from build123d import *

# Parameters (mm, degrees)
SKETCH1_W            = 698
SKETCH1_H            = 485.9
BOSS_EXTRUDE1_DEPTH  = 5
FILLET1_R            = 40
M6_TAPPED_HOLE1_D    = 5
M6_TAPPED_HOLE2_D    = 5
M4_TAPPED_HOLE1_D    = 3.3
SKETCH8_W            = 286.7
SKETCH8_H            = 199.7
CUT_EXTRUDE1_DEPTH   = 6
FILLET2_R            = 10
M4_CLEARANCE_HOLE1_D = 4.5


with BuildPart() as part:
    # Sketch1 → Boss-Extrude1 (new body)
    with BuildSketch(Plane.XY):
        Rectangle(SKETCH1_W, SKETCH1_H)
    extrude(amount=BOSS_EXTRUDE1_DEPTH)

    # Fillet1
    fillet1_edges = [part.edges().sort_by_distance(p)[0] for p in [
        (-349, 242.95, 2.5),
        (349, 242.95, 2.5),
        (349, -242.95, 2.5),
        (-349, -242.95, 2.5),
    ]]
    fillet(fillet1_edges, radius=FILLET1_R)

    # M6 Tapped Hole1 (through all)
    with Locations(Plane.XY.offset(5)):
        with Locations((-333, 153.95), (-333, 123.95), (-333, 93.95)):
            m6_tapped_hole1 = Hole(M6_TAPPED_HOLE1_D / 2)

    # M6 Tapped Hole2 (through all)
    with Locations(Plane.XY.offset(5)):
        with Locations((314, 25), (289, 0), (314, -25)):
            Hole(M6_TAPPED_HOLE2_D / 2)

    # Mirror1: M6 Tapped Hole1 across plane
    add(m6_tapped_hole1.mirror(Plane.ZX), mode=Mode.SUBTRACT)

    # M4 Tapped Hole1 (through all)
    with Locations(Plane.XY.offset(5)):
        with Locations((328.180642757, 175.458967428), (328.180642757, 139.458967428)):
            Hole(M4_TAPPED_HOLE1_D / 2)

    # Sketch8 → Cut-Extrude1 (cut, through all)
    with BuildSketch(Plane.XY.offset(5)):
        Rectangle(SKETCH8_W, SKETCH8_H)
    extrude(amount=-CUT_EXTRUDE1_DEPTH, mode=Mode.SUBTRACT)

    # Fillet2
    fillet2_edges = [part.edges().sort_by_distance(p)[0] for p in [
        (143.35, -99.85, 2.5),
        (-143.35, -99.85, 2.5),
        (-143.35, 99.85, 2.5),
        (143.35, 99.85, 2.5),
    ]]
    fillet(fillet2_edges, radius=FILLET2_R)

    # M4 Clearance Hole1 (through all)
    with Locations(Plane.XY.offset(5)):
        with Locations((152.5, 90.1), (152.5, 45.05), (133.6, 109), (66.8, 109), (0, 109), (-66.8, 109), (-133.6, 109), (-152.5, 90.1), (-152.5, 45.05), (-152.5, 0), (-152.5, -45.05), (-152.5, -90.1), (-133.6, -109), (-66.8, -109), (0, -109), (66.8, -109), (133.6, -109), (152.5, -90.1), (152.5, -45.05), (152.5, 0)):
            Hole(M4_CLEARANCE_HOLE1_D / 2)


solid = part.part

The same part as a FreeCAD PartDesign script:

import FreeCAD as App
import Part
import Sketcher
Q = App.Units.Quantity


def edges_at(feature, points):
    """Names of the edges that pass closest to the given points."""
    edges = feature.Shape.Edges
    near = lambda p: min(range(len(edges)), key=lambda i: edges[i].distToShape(Part.Vertex(*p))[0])
    return sorted({f"Edge{near(p) + 1}" for p in points})


def add_polygon(sketch, points):
    """Adds a closed chain of lines whose ends are joined by coincident constraints."""
    first, n = sketch.GeometryCount, len(points)
    for a, b in zip(points, points[1:] + points[:1]):
        sketch.addGeometry(Part.LineSegment(App.Vector(*a, 0), App.Vector(*b, 0)), False)
    for i in range(n):
        sketch.addConstraint(Sketcher.Constraint("Coincident", first + i, 2, first + (i + 1) % n, 1))

doc = App.newDocument("Part")
params = doc.addObject("Spreadsheet::Sheet", "Params")
for row, (alias, value) in enumerate([
    ("sketch1_width", "698 mm"),
    ("sketch1_height", "485.9 mm"),
    ("pad1_length", "5 mm"),
    ("fillet_radius", "40 mm"),
    ("sketch2_diameter", "5 mm"),
    ("hole_diameter", "5 mm"),
    ("sketch3_diameter", "5 mm"),
    ("hole2_diameter", "5 mm"),
    ("sketch4_diameter", "3.3 mm"),
    ("hole3_diameter", "3.3 mm"),
    ("sketch5_width", "286.7 mm"),
    ("sketch5_height", "199.7 mm"),
    ("fillet2_radius", "10 mm"),
    ("sketch6_diameter", "4.5 mm"),
    ("hole4_diameter", "4.5 mm"),
], start=1):
    params.set(f"A{row}", alias)
    params.set(f"B{row}", "=" + value)
    params.setAlias(f"B{row}", alias)

body = doc.addObject("PartDesign::Body", "Body")

sketch1 = body.newObject("Sketcher::SketchObject", "Sketch")
sketch1.AttachmentSupport = (doc.getObject("XY_Plane"), [""])
sketch1.MapMode = "FlatFace"
add_polygon(sketch1, [(-349, 243), (-349, -243), (349, -243), (349, 243)])
sketch1.addConstraint(Sketcher.Constraint("Vertical", 0))
sketch1.addConstraint(Sketcher.Constraint("Horizontal", 1))
sketch1.addConstraint(Sketcher.Constraint("Vertical", 2))
sketch1.addConstraint(Sketcher.Constraint("Horizontal", 3))
sketch1.addConstraint(Sketcher.Constraint("Symmetric", 0, 2, 2, 2, -1, 1))
sketch1.addConstraint(Sketcher.Constraint("DistanceX", 1, 1, 1, 2, Q("698 mm")))
sketch1.addConstraint(Sketcher.Constraint("DistanceY", 0, 2, 0, 1, Q("485.9 mm")))
sketch1.setExpression("Constraints[9]", "Params.sketch1_width")
sketch1.setExpression("Constraints[10]", "Params.sketch1_height")
pad1 = body.newObject("PartDesign::Pad", "Pad")
pad1.Profile = sketch1
pad1.setExpression("Length", "Params.pad1_length")
doc.recompute()

fillet = body.newObject("PartDesign::Fillet", "Fillet")
fillet.Base = (pad1, edges_at(pad1, [
    (-349, 242.95, 2.5),
    (349, 242.95, 2.5),
    (349, -242.95, 2.5),
    (-349, -242.95, 2.5),
]))
fillet.setExpression("Radius", "Params.fillet_radius")

sketch2 = body.newObject("Sketcher::SketchObject", "Sketch001")
sketch2.AttachmentSupport = (doc.getObject("XY_Plane"), [""])
sketch2.MapMode = "FlatFace"
sketch2.AttachmentOffset = App.Placement(App.Vector(0, 0, 5), App.Rotation())
sketch2.addGeometry(Part.Circle(App.Vector(-333, 153.9, 0), App.Vector(0, 0, 1), 2.5), False)
sketch2.addGeometry(Part.Circle(App.Vector(-333, 124, 0), App.Vector(0, 0, 1), 2.5), False)
sketch2.addGeometry(Part.Circle(App.Vector(-333, 94, 0), App.Vector(0, 0, 1), 2.5), False)
sketch2.addConstraint(Sketcher.Constraint("Equal", 0, 1))
sketch2.addConstraint(Sketcher.Constraint("Equal", 1, 2))
sketch2.addConstraint(Sketcher.Constraint("Vertical", 0, 3, 1, 3))
sketch2.addConstraint(Sketcher.Constraint("Vertical", 1, 3, 2, 3))
sketch2.addConstraint(Sketcher.Constraint("Diameter", 0, Q("5 mm")))
sketch2.addConstraint(Sketcher.Constraint("DistanceX", 0, 3, -1, 1, Q("333 mm")))
sketch2.addConstraint(Sketcher.Constraint("DistanceY", 1, 3, 0, 3, Q("30 mm")))
sketch2.addConstraint(Sketcher.Constraint("DistanceY", 2, 3, 1, 3, Q("30 mm")))
sketch2.addConstraint(Sketcher.Constraint("DistanceY", -1, 1, 0, 3, Q("153.95 mm")))
sketch2.setExpression("Constraints[4]", "Params.sketch2_diameter")
doc.recompute()
hole = body.newObject("PartDesign::Hole", "Hole")
hole.Profile = sketch2
hole.ThreadType = "None"
hole.setExpression("Diameter", "Params.hole_diameter")
hole.DepthType = "ThroughAll"

sketch3 = body.newObject("Sketcher::SketchObject", "Sketch002")
sketch3.AttachmentSupport = (doc.getObject("XY_Plane"), [""])
sketch3.MapMode = "FlatFace"
sketch3.AttachmentOffset = App.Placement(App.Vector(0, 0, 5), App.Rotation())
sketch3.addGeometry(Part.Circle(App.Vector(314, 25, 0), App.Vector(0, 0, 1), 2.5), False)
sketch3.addGeometry(Part.Circle(App.Vector(289, 0, 0), App.Vector(0, 0, 1), 2.5), False)
sketch3.addGeometry(Part.Circle(App.Vector(314, -25, 0), App.Vector(0, 0, 1), 2.5), False)
sketch3.addConstraint(Sketcher.Constraint("Equal", 0, 1))
sketch3.addConstraint(Sketcher.Constraint("Equal", 1, 2))
sketch3.addConstraint(Sketcher.Constraint("Symmetric", 0, 3, 2, 3, -1))
sketch3.addConstraint(Sketcher.Constraint("PointOnObject", 1, 3, -1))
sketch3.addConstraint(Sketcher.Constraint("Diameter", 0, Q("5 mm")))
sketch3.addConstraint(Sketcher.Constraint("DistanceX", -1, 1, 0, 3, Q("314 mm")))
sketch3.addConstraint(Sketcher.Constraint("DistanceY", -1, 1, 0, 3, Q("25 mm")))
sketch3.addConstraint(Sketcher.Constraint("DistanceX", -1, 1, 1, 3, Q("289 mm")))
sketch3.setExpression("Constraints[4]", "Params.sketch3_diameter")
doc.recompute()
hole2 = body.newObject("PartDesign::Hole", "Hole001")
hole2.Profile = sketch3
hole2.ThreadType = "None"
hole2.setExpression("Diameter", "Params.hole2_diameter")
hole2.DepthType = "ThroughAll"
doc.recompute()

mirrored = body.newObject("PartDesign::Mirrored", "Mirrored")
mirrored.Originals = [hole]
mirrored.MirrorPlane = (doc.getObject("XZ_Plane"), [""])
body.Tip = mirrored

sketch4 = body.newObject("Sketcher::SketchObject", "Sketch003")
sketch4.AttachmentSupport = (doc.getObject("XY_Plane"), [""])
sketch4.MapMode = "FlatFace"
sketch4.AttachmentOffset = App.Placement(App.Vector(0, 0, 5), App.Rotation())
sketch4.addGeometry(Part.Circle(App.Vector(328.2, 175.5, 0), App.Vector(0, 0, 1), 1.6), False)
sketch4.addGeometry(Part.Circle(App.Vector(328.2, 139.5, 0), App.Vector(0, 0, 1), 1.6), False)
sketch4.addConstraint(Sketcher.Constraint("Equal", 0, 1))
sketch4.addConstraint(Sketcher.Constraint("Vertical", 0, 3, 1, 3))
sketch4.addConstraint(Sketcher.Constraint("Diameter", 0, Q("3.3 mm")))
sketch4.addConstraint(Sketcher.Constraint("DistanceY", 1, 3, 0, 3, Q("36 mm")))
sketch4.addConstraint(Sketcher.Constraint("DistanceX", -1, 1, 0, 3, Q("328.180643 mm")))
sketch4.addConstraint(Sketcher.Constraint("DistanceY", -1, 1, 0, 3, Q("175.458967 mm")))
sketch4.setExpression("Constraints[2]", "Params.sketch4_diameter")
doc.recompute()
hole3 = body.newObject("PartDesign::Hole", "Hole002")
hole3.Profile = sketch4
hole3.ThreadType = "None"
hole3.setExpression("Diameter", "Params.hole3_diameter")
hole3.DepthType = "ThroughAll"

sketch5 = body.newObject("Sketcher::SketchObject", "Sketch004")
sketch5.AttachmentSupport = (doc.getObject("XY_Plane"), [""])
sketch5.MapMode = "FlatFace"
sketch5.AttachmentOffset = App.Placement(App.Vector(0, 0, 5), App.Rotation())
add_polygon(sketch5, [(-143, 100), (-143, -100), (143, -100), (143, 100)])
sketch5.addConstraint(Sketcher.Constraint("Vertical", 0))
sketch5.addConstraint(Sketcher.Constraint("Horizontal", 1))
sketch5.addConstraint(Sketcher.Constraint("Vertical", 2))
sketch5.addConstraint(Sketcher.Constraint("Horizontal", 3))
sketch5.addConstraint(Sketcher.Constraint("Symmetric", 0, 2, 2, 2, -1, 1))
sketch5.addConstraint(Sketcher.Constraint("DistanceX", 1, 1, 1, 2, Q("286.7 mm")))
sketch5.addConstraint(Sketcher.Constraint("DistanceY", 0, 2, 0, 1, Q("199.7 mm")))
sketch5.setExpression("Constraints[9]", "Params.sketch5_width")
sketch5.setExpression("Constraints[10]", "Params.sketch5_height")
pocket1 = body.newObject("PartDesign::Pocket", "Pocket")
pocket1.Profile = sketch5
pocket1.Type = "ThroughAll"
doc.recompute()

fillet2 = body.newObject("PartDesign::Fillet", "Fillet001")
fillet2.Base = (pocket1, edges_at(pocket1, [
    (143.35, -99.85, 2.5),
    (-143.35, -99.85, 2.5),
    (-143.35, 99.85, 2.5),
    (143.35, 99.85, 2.5),
]))
fillet2.setExpression("Radius", "Params.fillet2_radius")

sketch6 = body.newObject("Sketcher::SketchObject", "Sketch005")
sketch6.AttachmentSupport = (doc.getObject("XY_Plane"), [""])
sketch6.MapMode = "FlatFace"
sketch6.AttachmentOffset = App.Placement(App.Vector(0, 0, 5), App.Rotation())
sketch6.addGeometry(Part.Circle(App.Vector(152.5, 90.1, 0), App.Vector(0, 0, 1), 2.2), False)
sketch6.addGeometry(Part.Circle(App.Vector(152.5, 45, 0), App.Vector(0, 0, 1), 2.2), False)
sketch6.addGeometry(Part.Circle(App.Vector(133.6, 109, 0), App.Vector(0, 0, 1), 2.2), False)
sketch6.addGeometry(Part.Circle(App.Vector(66.8, 109, 0), App.Vector(0, 0, 1), 2.2), False)
sketch6.addGeometry(Part.Circle(App.Vector(0, 109, 0), App.Vector(0, 0, 1), 2.2), False)
sketch6.addGeometry(Part.Circle(App.Vector(-66.8, 109, 0), App.Vector(0, 0, 1), 2.2), False)
sketch6.addGeometry(Part.Circle(App.Vector(-133.6, 109, 0), App.Vector(0, 0, 1), 2.2), False)
sketch6.addGeometry(Part.Circle(App.Vector(-152.5, 90.1, 0), App.Vector(0, 0, 1), 2.2), False)
sketch6.addGeometry(Part.Circle(App.Vector(-152.5, 45, 0), App.Vector(0, 0, 1), 2.2), False)
sketch6.addGeometry(Part.Circle(App.Vector(-152.5, 0, 0), App.Vector(0, 0, 1), 2.2), False)
sketch6.addGeometry(Part.Circle(App.Vector(-152.5, -45, 0), App.Vector(0, 0, 1), 2.2), False)
sketch6.addGeometry(Part.Circle(App.Vector(-152.5, -90.1, 0), App.Vector(0, 0, 1), 2.2), False)
sketch6.addGeometry(Part.Circle(App.Vector(-133.6, -109, 0), App.Vector(0, 0, 1), 2.2), False)
sketch6.addGeometry(Part.Circle(App.Vector(-66.8, -109, 0), App.Vector(0, 0, 1), 2.2), False)
sketch6.addGeometry(Part.Circle(App.Vector(0, -109, 0), App.Vector(0, 0, 1), 2.2), False)
sketch6.addGeometry(Part.Circle(App.Vector(66.8, -109, 0), App.Vector(0, 0, 1), 2.2), False)
sketch6.addGeometry(Part.Circle(App.Vector(133.6, -109, 0), App.Vector(0, 0, 1), 2.2), False)
sketch6.addGeometry(Part.Circle(App.Vector(152.5, -90.1, 0), App.Vector(0, 0, 1), 2.2), False)
sketch6.addGeometry(Part.Circle(App.Vector(152.5, -45, 0), App.Vector(0, 0, 1), 2.2), False)
sketch6.addGeometry(Part.Circle(App.Vector(152.5, 0, 0), App.Vector(0, 0, 1), 2.2), False)
sketch6.addConstraint(Sketcher.Constraint("Equal", 0, 1))
sketch6.addConstraint(Sketcher.Constraint("Equal", 1, 2))
sketch6.addConstraint(Sketcher.Constraint("Equal", 2, 3))
sketch6.addConstraint(Sketcher.Constraint("Equal", 3, 4))
sketch6.addConstraint(Sketcher.Constraint("Equal", 4, 5))
sketch6.addConstraint(Sketcher.Constraint("Equal", 5, 6))
sketch6.addConstraint(Sketcher.Constraint("Equal", 6, 7))
sketch6.addConstraint(Sketcher.Constraint("Equal", 7, 8))
sketch6.addConstraint(Sketcher.Constraint("Equal", 8, 9))
sketch6.addConstraint(Sketcher.Constraint("Equal", 9, 10))
sketch6.addConstraint(Sketcher.Constraint("Equal", 10, 11))
sketch6.addConstraint(Sketcher.Constraint("Equal", 11, 12))
sketch6.addConstraint(Sketcher.Constraint("Equal", 12, 13))
sketch6.addConstraint(Sketcher.Constraint("Equal", 13, 14))
sketch6.addConstraint(Sketcher.Constraint("Equal", 14, 15))
sketch6.addConstraint(Sketcher.Constraint("Equal", 15, 16))
sketch6.addConstraint(Sketcher.Constraint("Equal", 16, 17))
sketch6.addConstraint(Sketcher.Constraint("Equal", 17, 18))
sketch6.addConstraint(Sketcher.Constraint("Equal", 18, 19))
sketch6.addConstraint(Sketcher.Constraint("Symmetric", 1, 3, 10, 3, -1, 1))
sketch6.addConstraint(Sketcher.Constraint("Symmetric", 0, 3, 11, 3, -1, 1))
sketch6.addConstraint(Sketcher.Constraint("Symmetric", 2, 3, 12, 3, -1, 1))
sketch6.addConstraint(Sketcher.Constraint("Symmetric", 3, 3, 13, 3, -1, 1))
sketch6.addConstraint(Sketcher.Constraint("Symmetric", 4, 3, 14, 3, -1, 1))
sketch6.addConstraint(Sketcher.Constraint("Symmetric", 5, 3, 15, 3, -1, 1))
sketch6.addConstraint(Sketcher.Constraint("Symmetric", 6, 3, 16, 3, -1, 1))
sketch6.addConstraint(Sketcher.Constraint("Symmetric", 7, 3, 17, 3, -1, 1))
sketch6.addConstraint(Sketcher.Constraint("Symmetric", 8, 3, 18, 3, -1, 1))
sketch6.addConstraint(Sketcher.Constraint("Symmetric", 9, 3, 19, 3, -1, 1))
sketch6.addConstraint(Sketcher.Constraint("Symmetric", 3, 3, 5, 3, -2))
sketch6.addConstraint(Sketcher.Constraint("Symmetric", 2, 3, 6, 3, -2))
sketch6.addConstraint(Sketcher.Constraint("Symmetric", 0, 3, 7, 3, -2))
sketch6.addConstraint(Sketcher.Constraint("Symmetric", 1, 3, 8, 3, -2))
sketch6.addConstraint(Sketcher.Constraint("PointOnObject", 4, 3, -2))
sketch6.addConstraint(Sketcher.Constraint("PointOnObject", 9, 3, -1))
sketch6.addConstraint(Sketcher.Constraint("Horizontal", 2, 3, 3, 3))
sketch6.addConstraint(Sketcher.Constraint("Horizontal", 3, 3, 4, 3))
sketch6.addConstraint(Sketcher.Constraint("Vertical", 0, 3, 1, 3))
sketch6.addConstraint(Sketcher.Constraint("Vertical", 8, 3, 9, 3))
sketch6.addConstraint(Sketcher.Constraint("Diameter", 0, Q("4.5 mm")))
sketch6.addConstraint(Sketcher.Constraint("DistanceY", -1, 1, 2, 3, Q("109 mm")))
sketch6.addConstraint(Sketcher.Constraint("DistanceX", -1, 1, 0, 3, Q("152.5 mm")))
sketch6.addConstraint(Sketcher.Constraint("DistanceY", -1, 1, 0, 3, Q("90.1 mm")))
sketch6.addConstraint(Sketcher.Constraint("DistanceX", -1, 1, 2, 3, Q("133.6 mm")))
sketch6.addConstraint(Sketcher.Constraint("DistanceX", -1, 1, 3, 3, Q("66.8 mm")))
sketch6.addConstraint(Sketcher.Constraint("DistanceY", 10, 3, 8, 3, Q("90.1 mm")))
sketch6.setExpression("Constraints[39]", "Params.sketch6_diameter")
doc.recompute()
hole4 = body.newObject("PartDesign::Hole", "Hole003")
hole4.Profile = sketch6
hole4.ThreadType = "None"
hole4.setExpression("Diameter", "Params.hole4_diameter")
hole4.DepthType = "ThroughAll"

doc.recompute()
